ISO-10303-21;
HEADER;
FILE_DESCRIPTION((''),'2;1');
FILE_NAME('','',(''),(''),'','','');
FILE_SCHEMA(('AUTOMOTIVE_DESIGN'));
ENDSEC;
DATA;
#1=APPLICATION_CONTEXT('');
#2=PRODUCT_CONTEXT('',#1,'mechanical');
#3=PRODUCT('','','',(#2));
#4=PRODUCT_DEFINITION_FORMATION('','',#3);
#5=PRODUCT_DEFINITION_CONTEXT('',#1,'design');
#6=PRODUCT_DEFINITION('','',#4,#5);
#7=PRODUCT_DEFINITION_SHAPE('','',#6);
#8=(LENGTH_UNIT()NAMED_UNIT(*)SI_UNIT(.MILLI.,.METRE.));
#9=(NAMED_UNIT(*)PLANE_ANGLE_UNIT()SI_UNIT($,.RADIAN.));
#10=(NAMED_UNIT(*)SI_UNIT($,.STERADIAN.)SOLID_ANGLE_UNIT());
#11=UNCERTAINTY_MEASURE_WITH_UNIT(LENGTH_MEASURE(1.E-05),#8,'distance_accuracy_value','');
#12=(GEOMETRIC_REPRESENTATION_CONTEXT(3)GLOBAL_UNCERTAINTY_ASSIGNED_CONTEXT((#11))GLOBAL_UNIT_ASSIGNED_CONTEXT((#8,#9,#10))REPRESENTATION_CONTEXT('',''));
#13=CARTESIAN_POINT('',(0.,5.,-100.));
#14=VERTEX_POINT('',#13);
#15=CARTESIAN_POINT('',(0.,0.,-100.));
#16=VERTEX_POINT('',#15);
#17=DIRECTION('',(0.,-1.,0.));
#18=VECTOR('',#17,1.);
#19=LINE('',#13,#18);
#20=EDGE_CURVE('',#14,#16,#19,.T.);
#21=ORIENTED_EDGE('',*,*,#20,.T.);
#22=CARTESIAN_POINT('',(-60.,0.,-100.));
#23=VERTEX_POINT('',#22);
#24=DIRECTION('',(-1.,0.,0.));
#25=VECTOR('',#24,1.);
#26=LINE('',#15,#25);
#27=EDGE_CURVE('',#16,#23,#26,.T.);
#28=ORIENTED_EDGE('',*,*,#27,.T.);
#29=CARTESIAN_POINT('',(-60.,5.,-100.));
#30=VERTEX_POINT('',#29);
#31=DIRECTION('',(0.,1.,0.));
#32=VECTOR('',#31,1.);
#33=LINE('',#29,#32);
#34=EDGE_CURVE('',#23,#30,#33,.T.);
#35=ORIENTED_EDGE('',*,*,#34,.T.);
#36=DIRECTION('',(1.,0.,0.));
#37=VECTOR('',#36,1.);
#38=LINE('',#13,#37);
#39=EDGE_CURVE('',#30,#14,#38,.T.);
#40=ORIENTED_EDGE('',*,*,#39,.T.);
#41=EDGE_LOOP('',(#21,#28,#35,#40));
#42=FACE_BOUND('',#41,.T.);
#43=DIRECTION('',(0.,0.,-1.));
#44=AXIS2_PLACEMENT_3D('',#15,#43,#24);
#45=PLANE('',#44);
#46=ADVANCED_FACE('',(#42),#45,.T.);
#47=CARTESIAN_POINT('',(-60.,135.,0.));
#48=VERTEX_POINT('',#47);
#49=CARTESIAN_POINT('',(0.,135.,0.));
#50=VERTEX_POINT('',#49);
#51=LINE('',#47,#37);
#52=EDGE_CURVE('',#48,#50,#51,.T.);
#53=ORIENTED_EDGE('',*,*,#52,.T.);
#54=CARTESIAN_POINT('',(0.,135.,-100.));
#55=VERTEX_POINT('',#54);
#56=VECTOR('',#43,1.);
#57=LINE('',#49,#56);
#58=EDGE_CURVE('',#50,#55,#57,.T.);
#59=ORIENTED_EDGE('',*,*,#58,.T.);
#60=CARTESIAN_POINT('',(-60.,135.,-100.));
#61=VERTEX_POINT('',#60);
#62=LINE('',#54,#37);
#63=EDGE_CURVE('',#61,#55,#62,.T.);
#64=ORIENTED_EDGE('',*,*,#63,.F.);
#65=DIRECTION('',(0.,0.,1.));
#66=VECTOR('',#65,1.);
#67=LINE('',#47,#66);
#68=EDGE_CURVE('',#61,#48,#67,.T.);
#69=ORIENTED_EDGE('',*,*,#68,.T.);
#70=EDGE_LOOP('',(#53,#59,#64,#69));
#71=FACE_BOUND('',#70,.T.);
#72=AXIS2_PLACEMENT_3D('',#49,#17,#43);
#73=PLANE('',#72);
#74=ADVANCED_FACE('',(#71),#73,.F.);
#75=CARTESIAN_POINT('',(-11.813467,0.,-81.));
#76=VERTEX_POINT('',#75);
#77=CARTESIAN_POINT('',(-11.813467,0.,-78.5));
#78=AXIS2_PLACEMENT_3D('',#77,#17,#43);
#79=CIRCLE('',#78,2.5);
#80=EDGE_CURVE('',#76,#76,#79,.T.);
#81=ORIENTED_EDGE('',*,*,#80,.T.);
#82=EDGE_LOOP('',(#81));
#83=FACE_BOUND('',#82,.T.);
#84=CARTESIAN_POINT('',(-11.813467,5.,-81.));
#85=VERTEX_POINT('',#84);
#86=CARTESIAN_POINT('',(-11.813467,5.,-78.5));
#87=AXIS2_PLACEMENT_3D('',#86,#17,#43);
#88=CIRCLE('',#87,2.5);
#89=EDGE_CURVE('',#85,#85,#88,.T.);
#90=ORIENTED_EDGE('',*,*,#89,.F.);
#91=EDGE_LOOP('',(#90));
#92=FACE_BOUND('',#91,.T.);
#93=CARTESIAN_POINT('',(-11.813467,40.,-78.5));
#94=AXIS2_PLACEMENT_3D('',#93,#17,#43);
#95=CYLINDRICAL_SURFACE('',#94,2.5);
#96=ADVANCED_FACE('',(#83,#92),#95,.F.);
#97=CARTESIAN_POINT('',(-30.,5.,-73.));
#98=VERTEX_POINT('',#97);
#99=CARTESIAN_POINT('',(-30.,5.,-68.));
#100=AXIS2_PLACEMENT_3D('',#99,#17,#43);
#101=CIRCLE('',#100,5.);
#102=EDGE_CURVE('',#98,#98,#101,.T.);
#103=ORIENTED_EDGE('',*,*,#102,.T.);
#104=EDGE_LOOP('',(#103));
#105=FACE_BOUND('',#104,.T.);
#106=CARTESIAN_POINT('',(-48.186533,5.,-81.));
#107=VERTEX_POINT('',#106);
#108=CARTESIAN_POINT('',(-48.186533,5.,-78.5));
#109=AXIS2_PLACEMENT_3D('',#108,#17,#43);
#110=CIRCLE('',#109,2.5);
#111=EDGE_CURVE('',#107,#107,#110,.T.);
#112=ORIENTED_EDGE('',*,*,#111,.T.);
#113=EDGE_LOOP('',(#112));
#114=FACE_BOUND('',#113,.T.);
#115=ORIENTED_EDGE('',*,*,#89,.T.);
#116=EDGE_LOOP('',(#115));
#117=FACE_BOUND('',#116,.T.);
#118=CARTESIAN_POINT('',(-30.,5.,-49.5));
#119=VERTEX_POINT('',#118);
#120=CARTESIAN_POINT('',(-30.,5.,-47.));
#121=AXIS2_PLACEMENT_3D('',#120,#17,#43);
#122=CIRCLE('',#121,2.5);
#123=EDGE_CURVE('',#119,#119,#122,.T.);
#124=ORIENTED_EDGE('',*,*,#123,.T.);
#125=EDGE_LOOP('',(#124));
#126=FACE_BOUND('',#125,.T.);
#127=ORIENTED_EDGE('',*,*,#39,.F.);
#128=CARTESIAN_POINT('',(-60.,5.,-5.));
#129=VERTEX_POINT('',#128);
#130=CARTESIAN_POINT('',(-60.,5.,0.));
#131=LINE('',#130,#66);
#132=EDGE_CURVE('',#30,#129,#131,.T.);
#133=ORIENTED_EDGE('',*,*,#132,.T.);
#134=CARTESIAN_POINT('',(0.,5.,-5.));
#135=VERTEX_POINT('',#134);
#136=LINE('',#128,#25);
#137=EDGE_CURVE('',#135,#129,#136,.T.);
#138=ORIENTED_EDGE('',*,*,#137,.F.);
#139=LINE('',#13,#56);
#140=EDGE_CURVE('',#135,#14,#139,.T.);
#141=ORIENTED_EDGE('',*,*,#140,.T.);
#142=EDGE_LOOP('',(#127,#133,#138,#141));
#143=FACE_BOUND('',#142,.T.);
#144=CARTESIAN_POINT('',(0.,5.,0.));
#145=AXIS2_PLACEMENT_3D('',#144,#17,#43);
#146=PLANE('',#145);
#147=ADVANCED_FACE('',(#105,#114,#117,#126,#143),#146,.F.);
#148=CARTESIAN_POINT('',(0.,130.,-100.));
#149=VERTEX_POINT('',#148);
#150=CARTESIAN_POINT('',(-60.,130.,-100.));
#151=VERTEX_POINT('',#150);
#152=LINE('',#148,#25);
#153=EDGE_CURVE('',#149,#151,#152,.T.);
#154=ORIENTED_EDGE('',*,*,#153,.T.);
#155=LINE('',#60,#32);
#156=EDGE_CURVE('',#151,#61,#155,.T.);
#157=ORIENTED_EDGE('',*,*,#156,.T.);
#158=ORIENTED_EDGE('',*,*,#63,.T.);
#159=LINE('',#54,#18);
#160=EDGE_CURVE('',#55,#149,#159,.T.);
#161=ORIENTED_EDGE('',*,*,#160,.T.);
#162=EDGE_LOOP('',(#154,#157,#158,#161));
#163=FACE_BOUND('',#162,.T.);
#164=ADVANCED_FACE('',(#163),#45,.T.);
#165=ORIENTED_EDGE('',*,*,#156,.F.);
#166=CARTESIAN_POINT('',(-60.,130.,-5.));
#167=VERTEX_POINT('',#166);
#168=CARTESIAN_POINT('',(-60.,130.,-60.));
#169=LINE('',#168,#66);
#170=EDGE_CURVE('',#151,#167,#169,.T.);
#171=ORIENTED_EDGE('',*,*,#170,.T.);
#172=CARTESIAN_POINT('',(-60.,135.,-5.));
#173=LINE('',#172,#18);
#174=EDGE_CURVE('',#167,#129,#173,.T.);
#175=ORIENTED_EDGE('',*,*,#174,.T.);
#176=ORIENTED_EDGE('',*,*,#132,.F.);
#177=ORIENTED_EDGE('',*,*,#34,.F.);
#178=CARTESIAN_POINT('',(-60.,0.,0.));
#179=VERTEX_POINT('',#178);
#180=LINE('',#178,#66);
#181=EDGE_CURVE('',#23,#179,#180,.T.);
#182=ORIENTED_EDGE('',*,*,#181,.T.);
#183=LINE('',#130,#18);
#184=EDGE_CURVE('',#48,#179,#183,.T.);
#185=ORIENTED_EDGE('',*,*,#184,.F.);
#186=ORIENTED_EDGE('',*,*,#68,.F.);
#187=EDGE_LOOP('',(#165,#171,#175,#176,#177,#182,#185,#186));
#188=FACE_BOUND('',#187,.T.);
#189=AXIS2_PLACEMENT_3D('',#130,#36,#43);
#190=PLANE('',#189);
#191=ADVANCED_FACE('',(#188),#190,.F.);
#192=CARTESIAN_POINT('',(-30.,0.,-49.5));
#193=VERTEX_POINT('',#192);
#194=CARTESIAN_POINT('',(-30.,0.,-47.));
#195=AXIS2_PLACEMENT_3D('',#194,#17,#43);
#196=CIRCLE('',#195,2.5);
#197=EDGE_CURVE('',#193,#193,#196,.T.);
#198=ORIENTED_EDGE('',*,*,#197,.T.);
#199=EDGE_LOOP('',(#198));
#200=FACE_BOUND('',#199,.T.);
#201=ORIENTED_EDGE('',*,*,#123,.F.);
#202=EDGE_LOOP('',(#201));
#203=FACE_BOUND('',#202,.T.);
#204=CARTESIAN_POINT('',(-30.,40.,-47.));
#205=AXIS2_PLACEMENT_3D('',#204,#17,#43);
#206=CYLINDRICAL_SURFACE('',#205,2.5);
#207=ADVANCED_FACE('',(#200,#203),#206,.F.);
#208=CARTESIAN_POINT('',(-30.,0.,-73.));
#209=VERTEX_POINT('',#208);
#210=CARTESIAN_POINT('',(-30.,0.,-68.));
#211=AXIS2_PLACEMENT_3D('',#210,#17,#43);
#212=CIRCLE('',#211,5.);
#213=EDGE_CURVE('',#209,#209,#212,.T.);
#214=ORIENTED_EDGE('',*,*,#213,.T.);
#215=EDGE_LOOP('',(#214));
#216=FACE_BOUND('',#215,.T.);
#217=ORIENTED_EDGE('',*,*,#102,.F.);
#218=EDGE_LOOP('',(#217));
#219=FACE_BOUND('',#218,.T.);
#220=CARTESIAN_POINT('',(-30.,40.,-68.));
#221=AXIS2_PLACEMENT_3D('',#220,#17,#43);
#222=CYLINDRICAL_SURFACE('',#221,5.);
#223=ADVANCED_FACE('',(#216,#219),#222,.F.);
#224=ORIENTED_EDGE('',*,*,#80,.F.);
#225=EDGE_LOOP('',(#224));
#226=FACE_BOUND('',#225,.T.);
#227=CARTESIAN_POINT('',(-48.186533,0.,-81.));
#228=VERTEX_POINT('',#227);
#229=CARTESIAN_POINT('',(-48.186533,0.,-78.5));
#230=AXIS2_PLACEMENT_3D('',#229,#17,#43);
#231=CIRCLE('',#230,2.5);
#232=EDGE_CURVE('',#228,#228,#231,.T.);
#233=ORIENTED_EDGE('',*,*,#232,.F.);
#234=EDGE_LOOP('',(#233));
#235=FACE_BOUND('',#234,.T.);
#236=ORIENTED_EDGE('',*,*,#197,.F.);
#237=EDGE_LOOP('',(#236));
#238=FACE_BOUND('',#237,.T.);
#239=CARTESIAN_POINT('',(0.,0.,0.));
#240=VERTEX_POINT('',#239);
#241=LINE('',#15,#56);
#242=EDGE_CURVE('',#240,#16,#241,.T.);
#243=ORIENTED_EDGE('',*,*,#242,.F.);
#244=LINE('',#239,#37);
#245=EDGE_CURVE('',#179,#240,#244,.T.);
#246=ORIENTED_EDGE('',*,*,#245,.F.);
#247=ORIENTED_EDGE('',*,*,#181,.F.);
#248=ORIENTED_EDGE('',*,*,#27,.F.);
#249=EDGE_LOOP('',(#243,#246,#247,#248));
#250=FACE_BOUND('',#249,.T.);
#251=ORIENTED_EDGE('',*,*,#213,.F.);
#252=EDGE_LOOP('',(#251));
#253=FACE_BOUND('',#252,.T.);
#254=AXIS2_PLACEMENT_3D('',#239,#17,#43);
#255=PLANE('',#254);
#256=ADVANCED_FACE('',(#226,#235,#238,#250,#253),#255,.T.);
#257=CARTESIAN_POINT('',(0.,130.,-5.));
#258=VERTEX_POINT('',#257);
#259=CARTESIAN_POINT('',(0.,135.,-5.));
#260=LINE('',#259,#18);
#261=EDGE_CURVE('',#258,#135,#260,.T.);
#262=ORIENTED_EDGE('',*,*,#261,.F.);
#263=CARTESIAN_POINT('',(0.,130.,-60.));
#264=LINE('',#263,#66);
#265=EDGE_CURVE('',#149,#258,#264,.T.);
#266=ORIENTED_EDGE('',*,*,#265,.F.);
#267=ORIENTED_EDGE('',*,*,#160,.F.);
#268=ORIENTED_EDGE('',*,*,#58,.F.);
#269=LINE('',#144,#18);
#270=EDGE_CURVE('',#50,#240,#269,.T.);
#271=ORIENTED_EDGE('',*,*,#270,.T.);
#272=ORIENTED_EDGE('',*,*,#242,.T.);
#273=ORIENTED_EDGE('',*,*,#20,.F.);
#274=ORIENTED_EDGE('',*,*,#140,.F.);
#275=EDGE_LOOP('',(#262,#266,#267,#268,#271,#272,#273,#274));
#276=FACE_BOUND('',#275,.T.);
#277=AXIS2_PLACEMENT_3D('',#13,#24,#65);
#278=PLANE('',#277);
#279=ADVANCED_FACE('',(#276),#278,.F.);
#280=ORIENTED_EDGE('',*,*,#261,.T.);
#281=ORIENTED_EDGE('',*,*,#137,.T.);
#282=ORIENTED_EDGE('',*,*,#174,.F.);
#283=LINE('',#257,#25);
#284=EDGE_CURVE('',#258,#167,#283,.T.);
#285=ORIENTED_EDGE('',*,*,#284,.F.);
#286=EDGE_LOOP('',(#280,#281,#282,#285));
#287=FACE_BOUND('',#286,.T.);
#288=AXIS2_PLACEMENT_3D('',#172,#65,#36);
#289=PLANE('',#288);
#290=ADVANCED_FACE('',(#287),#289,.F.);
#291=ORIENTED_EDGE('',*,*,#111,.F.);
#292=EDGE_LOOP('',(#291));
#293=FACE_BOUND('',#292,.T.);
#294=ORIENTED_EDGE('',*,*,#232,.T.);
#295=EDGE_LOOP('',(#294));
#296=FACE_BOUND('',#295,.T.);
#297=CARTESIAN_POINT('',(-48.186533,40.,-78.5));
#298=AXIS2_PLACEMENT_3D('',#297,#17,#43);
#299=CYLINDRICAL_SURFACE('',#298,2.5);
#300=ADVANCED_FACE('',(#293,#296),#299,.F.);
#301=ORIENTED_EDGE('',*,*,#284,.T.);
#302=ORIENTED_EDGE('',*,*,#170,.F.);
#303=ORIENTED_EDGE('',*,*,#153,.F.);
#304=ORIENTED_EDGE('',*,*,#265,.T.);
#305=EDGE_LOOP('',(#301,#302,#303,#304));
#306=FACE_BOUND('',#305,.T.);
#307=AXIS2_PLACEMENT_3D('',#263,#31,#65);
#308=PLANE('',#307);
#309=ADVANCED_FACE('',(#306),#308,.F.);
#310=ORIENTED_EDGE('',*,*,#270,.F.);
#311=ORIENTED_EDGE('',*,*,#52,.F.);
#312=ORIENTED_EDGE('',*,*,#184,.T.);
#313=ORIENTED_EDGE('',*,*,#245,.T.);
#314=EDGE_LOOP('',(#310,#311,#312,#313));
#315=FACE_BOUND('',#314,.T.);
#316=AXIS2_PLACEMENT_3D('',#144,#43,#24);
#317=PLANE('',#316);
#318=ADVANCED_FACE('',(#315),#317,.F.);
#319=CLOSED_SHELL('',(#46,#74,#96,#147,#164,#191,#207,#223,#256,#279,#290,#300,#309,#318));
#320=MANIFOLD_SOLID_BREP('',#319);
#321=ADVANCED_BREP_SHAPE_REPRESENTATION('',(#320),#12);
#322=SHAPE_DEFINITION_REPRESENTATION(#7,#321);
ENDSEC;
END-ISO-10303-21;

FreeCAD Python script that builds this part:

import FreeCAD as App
import Part
import Sketcher

V = App.Vector
Q = App.Units.Quantity

doc = App.newDocument("Part")
body = doc.addObject("PartDesign::Body", "Body")

# Sketch on XZ plane
sketch1 = body.newObject("Sketcher::SketchObject", "Sketch")
sketch1.AttachmentSupport = (doc.getObject("XZ_Plane"), [""])
sketch1.MapMode = "FlatFace"
sketch1.addGeometry([
    Part.LineSegment(V(-60, -100, 0), V(-60, 0, 0)),
    Part.LineSegment(V(-60, 0, 0), V(0, 0, 0)),
    Part.LineSegment(V(0, 0, 0), V(0, -100, 0)),
    Part.LineSegment(V(0, -100, 0), V(-60, -100, 0)),
], False)
sketch1.addConstraint([
    Sketcher.Constraint("Coincident", 0, 2, 1, 1),
    Sketcher.Constraint("Coincident", 1, 2, 2, 1),
    Sketcher.Constraint("Coincident", 2, 2, 3, 1),
    Sketcher.Constraint("Coincident", 3, 2, 0, 1),
    Sketcher.Constraint("Vertical", 0),
    Sketcher.Constraint("Horizontal", 1),
    Sketcher.Constraint("Vertical", 2),
    Sketcher.Constraint("Horizontal", 3),
    Sketcher.Constraint("Coincident", 1, 2, -1, 1),
    Sketcher.Constraint("DistanceX", 1, 1, 1, 2, Q("60 mm")),
    Sketcher.Constraint("DistanceY", 0, 1, 0, 2, Q("100 mm")),
])
pad1 = body.newObject("PartDesign::Pad", "Pad")
pad1.Profile = sketch1
pad1.Length = 5
pad1.Reversed = True

# Sketch on XZ plane
sketch2 = body.newObject("Sketcher::SketchObject", "Sketch001")
sketch2.AttachmentSupport = (doc.getObject("XZ_Plane"), [""])
sketch2.MapMode = "FlatFace"
sketch2.AttachmentOffset = App.Placement(V(0, 0, -5), App.Rotation())
sketch2.addGeometry([
    Part.LineSegment(V(-60, -5, 0), V(-60, 0, 0)),
    Part.LineSegment(V(-60, 0, 0), V(0, 0, 0)),
    Part.LineSegment(V(0, 0, 0), V(0, -5, 0)),
    Part.LineSegment(V(0, -5, 0), V(-60, -5, 0)),
], False)
sketch2.addConstraint([
    Sketcher.Constraint("Coincident", 0, 2, 1, 1),
    Sketcher.Constraint("Coincident", 1, 2, 2, 1),
    Sketcher.Constraint("Coincident", 2, 2, 3, 1),
    Sketcher.Constraint("Coincident", 3, 2, 0, 1),
    Sketcher.Constraint("Vertical", 0),
    Sketcher.Constraint("Horizontal", 1),
    Sketcher.Constraint("Vertical", 2),
    Sketcher.Constraint("Horizontal", 3),
    Sketcher.Constraint("Coincident", 1, 2, -1, 1),
    Sketcher.Constraint("DistanceX", 1, 1, 1, 2, Q("60 mm")),
    Sketcher.Constraint("DistanceY", 0, 1, 0, 2, Q("5 mm")),
])
pad2 = body.newObject("PartDesign::Pad", "Pad001")
pad2.Profile = sketch2
pad2.Length = 130
pad2.Reversed = True

# Sketch on XY plane
sketch3 = body.newObject("Sketcher::SketchObject", "Sketch002")
sketch3.AttachmentSupport = (doc.getObject("XY_Plane"), [""])
sketch3.MapMode = "FlatFace"
sketch3.AttachmentOffset = App.Placement(V(0, 0, -5), App.Rotation())
sketch3.addGeometry([
    Part.LineSegment(V(0, 135, 0), V(0, 130, 0)),
    Part.LineSegment(V(0, 130, 0), V(-60, 130, 0)),
    Part.LineSegment(V(-60, 130, 0), V(-60, 135, 0)),
    Part.LineSegment(V(-60, 135, 0), V(0, 135, 0)),
], False)
sketch3.addConstraint([
    Sketcher.Constraint("Coincident", 0, 2, 1, 1),
    Sketcher.Constraint("Coincident", 1, 2, 2, 1),
    Sketcher.Constraint("Coincident", 2, 2, 3, 1),
    Sketcher.Constraint("Coincident", 3, 2, 0, 1),
    Sketcher.Constraint("Vertical", 0),
    Sketcher.Constraint("Horizontal", 1),
    Sketcher.Constraint("Vertical", 2),
    Sketcher.Constraint("Horizontal", 3),
    Sketcher.Constraint("PointOnObject", 0, 2, -2),
    Sketcher.Constraint("DistanceX", 1, 2, 1, 1, Q("60 mm")),
    Sketcher.Constraint("DistanceY", 0, 2, 0, 1, Q("5 mm")),
    Sketcher.Constraint("DistanceY", -1, 1, 0, 2, Q("130 mm")),
])
pad3 = body.newObject("PartDesign::Pad", "Pad002")
pad3.Profile = sketch3
pad3.Length = 55
pad3.Reversed = True

# Sketch on XZ plane
sketch4 = body.newObject("Sketcher::SketchObject", "Sketch003")
sketch4.AttachmentSupport = (doc.getObject("XZ_Plane"), [""])
sketch4.MapMode = "FlatFace"
sketch4.addGeometry([
    Part.LineSegment(V(0, -100, 0), V(0, -60, 0)),
    Part.LineSegment(V(0, -60, 0), V(-60, -60, 0)),
    Part.LineSegment(V(-60, -60, 0), V(-60, -100, 0)),
    Part.LineSegment(V(-60, -100, 0), V(0, -100, 0)),
], False)
sketch4.addConstraint([
    Sketcher.Constraint("Coincident", 0, 2, 1, 1),
    Sketcher.Constraint("Coincident", 1, 2, 2, 1),
    Sketcher.Constraint("Coincident", 2, 2, 3, 1),
    Sketcher.Constraint("Coincident", 3, 2, 0, 1),
    Sketcher.Constraint("Vertical", 0),
    Sketcher.Constraint("Horizontal", 1),
    Sketcher.Constraint("Vertical", 2),
    Sketcher.Constraint("Horizontal", 3),
    Sketcher.Constraint("PointOnObject", 0, 2, -2),
    Sketcher.Constraint("DistanceX", 1, 2, 1, 1, Q("60 mm")),
    Sketcher.Constraint("DistanceY", 0, 1, 0, 2, Q("40 mm")),
    Sketcher.Constraint("DistanceY", 0, 2, -1, 1, Q("60 mm")),
])
pocket1 = body.newObject("PartDesign::Pocket", "Pocket")
pocket1.Profile = sketch4
pocket1.Length = 55

# Sketch on XY plane
sketch5 = body.newObject("Sketcher::SketchObject", "Sketch004")
sketch5.AttachmentSupport = (doc.getObject("XY_Plane"), [""])
sketch5.MapMode = "FlatFace"
sketch5.AttachmentOffset = App.Placement(V(0, 0, -60), App.Rotation())
sketch5.addGeometry([
    Part.LineSegment(V(0, 135, 0), V(0, 130, 0)),
    Part.LineSegment(V(0, 130, 0), V(-60, 130, 0)),
    Part.LineSegment(V(-60, 130, 0), V(-60, 135, 0)),
    Part.LineSegment(V(-60, 135, 0), V(0, 135, 0)),
], False)
sketch5.addConstraint([
    Sketcher.Constraint("Coincident", 0, 2, 1, 1),
    Sketcher.Constraint("Coincident", 1, 2, 2, 1),
    Sketcher.Constraint("Coincident", 2, 2, 3, 1),
    Sketcher.Constraint("Coincident", 3, 2, 0, 1),
    Sketcher.Constraint("Vertical", 0),
    Sketcher.Constraint("Horizontal", 1),
    Sketcher.Constraint("Vertical", 2),
    Sketcher.Constraint("Horizontal", 3),
    Sketcher.Constraint("PointOnObject", 0, 2, -2),
    Sketcher.Constraint("DistanceX", 1, 2, 1, 1, Q("60 mm")),
    Sketcher.Constraint("DistanceY", 0, 2, 0, 1, Q("5 mm")),
    Sketcher.Constraint("DistanceY", -1, 1, 0, 2, Q("130 mm")),
])
pad4 = body.newObject("PartDesign::Pad", "Pad003")
pad4.Profile = sketch5
pad4.Length = 40
pad4.Reversed = True

# Sketch on XY plane
sketch6 = body.newObject("Sketcher::SketchObject", "Sketch005")
sketch6.AttachmentSupport = (doc.getObject("XY_Plane"), [""])
sketch6.MapMode = "FlatFace"
sketch6.AttachmentOffset = App.Placement(V(0, 0, -60), App.Rotation())
sketch6.addGeometry([
    Part.LineSegment(V(0, 5, 0), V(0, 0, 0)),
    Part.LineSegment(V(0, 0, 0), V(-60, 0, 0)),
    Part.LineSegment(V(-60, 0, 0), V(-60, 5, 0)),
    Part.LineSegment(V(-60, 5, 0), V(0, 5, 0)),
], False)
sketch6.addConstraint([
    Sketcher.Constraint("Coincident", 0, 2, 1, 1),
    Sketcher.Constraint("Coincident", 1, 2, 2, 1),
    Sketcher.Constraint("Coincident", 2, 2, 3, 1),
    Sketcher.Constraint("Coincident", 3, 2, 0, 1),
    Sketcher.Constraint("Vertical", 0),
    Sketcher.Constraint("Horizontal", 1),
    Sketcher.Constraint("Vertical", 2),
    Sketcher.Constraint("Horizontal", 3),
    Sketcher.Constraint("Coincident", 0, 2, -1, 1),
    Sketcher.Constraint("DistanceX", 1, 2, 1, 1, Q("60 mm")),
    Sketcher.Constraint("DistanceY", 0, 2, 0, 1, Q("5 mm")),
])
pad5 = body.newObject("PartDesign::Pad", "Pad004")
pad5.Profile = sketch6
pad5.Length = 40
pad5.Reversed = True

# Sketch on XZ plane
sketch7 = body.newObject("Sketcher::SketchObject", "Sketch006")
sketch7.AttachmentSupport = (doc.getObject("XZ_Plane"), [""])
sketch7.MapMode = "FlatFace"
sketch7.addGeometry(Part.Circle(V(-30, -68, 0), V(0, 0, 1), 5), False)
sketch7.addConstraint([
    Sketcher.Constraint("Diameter", 0, Q("10 mm")),
    Sketcher.Constraint("DistanceX", 0, 3, -1, 1, Q("30 mm")),
    Sketcher.Constraint("DistanceY", 0, 3, -1, 1, Q("68 mm")),
])
pocket2 = body.newObject("PartDesign::Pocket", "Pocket001")
pocket2.Profile = sketch7
pocket2.Length = 40

# Sketch on XZ plane
sketch8 = body.newObject("Sketcher::SketchObject", "Sketch007")
sketch8.AttachmentSupport = (doc.getObject("XZ_Plane"), [""])
sketch8.MapMode = "FlatFace"
sketch8.addGeometry([
    Part.Circle(V(-30, -47, 0), V(0, 0, 1), 2.5),
    Part.Circle(V(-48.2, -78.5, 0), V(0, 0, 1), 2.5),
    Part.Circle(V(-11.8, -78.5, 0), V(0, 0, 1), 2.5),
], False)
sketch8.addConstraint([
    Sketcher.Constraint("Equal", 0, 1),
    Sketcher.Constraint("Equal", 1, 2),
    Sketcher.Constraint("Horizontal", 1, 3, 2, 3),
    Sketcher.Constraint("Diameter", 0, Q("5 mm")),
    Sketcher.Constraint("DistanceX", 0, 3, -1, 1, Q("30 mm")),
    Sketcher.Constraint("DistanceY", 0, 3, -1, 1, Q("47 mm")),
    Sketcher.Constraint("DistanceY", 1, 3, -1, 1, Q("78.5 mm")),
    Sketcher.Constraint("DistanceX", 1, 3, -1, 1, Q("48.186533 mm")),
    Sketcher.Constraint("DistanceX", 2, 3, -1, 1, Q("11.813467 mm")),
])
pocket3 = body.newObject("PartDesign::Pocket", "Pocket002")
pocket3.Profile = sketch8
pocket3.Length = 40

doc.recompute()
